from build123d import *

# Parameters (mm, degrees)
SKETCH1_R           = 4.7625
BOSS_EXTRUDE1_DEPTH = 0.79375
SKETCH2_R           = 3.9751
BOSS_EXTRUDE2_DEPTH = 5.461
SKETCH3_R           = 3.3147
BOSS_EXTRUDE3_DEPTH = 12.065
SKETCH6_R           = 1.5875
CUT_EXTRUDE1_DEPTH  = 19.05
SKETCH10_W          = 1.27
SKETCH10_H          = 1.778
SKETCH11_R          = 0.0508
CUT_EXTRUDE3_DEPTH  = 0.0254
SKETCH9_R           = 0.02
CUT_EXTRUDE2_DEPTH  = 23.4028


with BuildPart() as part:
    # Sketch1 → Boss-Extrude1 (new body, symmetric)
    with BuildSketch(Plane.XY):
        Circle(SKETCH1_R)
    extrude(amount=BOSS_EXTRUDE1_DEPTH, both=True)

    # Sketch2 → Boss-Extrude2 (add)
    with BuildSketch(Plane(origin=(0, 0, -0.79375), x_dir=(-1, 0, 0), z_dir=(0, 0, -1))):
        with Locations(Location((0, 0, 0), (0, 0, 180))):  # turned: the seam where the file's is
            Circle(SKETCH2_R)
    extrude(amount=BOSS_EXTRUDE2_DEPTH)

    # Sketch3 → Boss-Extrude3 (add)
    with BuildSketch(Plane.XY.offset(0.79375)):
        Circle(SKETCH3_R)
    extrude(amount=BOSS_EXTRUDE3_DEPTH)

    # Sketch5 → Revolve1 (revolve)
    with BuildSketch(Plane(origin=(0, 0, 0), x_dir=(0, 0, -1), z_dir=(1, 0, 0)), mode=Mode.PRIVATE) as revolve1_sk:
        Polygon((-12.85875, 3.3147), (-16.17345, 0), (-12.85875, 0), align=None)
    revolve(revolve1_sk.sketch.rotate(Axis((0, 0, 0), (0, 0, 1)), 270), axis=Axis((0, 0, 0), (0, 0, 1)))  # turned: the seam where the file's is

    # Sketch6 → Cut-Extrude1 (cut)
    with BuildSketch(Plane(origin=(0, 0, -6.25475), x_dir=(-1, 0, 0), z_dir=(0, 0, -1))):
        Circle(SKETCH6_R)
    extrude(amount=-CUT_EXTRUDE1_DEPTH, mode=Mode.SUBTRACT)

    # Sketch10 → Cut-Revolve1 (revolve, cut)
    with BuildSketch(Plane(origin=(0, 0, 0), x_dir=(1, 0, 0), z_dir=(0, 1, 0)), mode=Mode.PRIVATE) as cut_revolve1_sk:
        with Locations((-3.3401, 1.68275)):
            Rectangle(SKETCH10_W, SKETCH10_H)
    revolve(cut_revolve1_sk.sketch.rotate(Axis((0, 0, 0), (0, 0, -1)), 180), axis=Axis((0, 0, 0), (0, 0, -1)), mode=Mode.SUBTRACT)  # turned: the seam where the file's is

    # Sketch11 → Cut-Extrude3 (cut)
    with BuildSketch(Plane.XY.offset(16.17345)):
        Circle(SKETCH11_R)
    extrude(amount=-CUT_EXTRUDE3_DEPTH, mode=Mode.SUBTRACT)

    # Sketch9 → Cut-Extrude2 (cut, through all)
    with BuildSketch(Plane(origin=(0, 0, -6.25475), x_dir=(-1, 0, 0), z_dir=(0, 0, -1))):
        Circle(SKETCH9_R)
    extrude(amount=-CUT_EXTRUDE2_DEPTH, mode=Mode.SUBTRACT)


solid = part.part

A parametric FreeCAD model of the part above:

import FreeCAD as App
import Part
import Sketcher
Q = App.Units.Quantity

doc = App.newDocument("Part")
params = doc.addObject("Spreadsheet::Sheet", "Params")
for row, (alias, value) in enumerate([
    ("sketch1_diameter", "0.375 in"),
    ("pad1_length", "0.0625 in"),
    ("sketch2_diameter", "0.313 in"),
    ("pad2_length", "0.215 in"),
    ("sketch3_diameter", "0.261 in"),
    ("pad3_length", "0.475 in"),
    ("revolution_angle", "360 deg"),
    ("sketch5_diameter", "0.125 in"),
    ("pocket1_length", "0.75 in"),
    ("sketch6_width", "0.05 in"),
    ("sketch6_height", "0.07 in"),
    ("groove_angle", "360 deg"),
    ("sketch7_diameter", "0.004 in"),
    ("pocket2_length", "0.001 in"),
], start=1):
    params.set(f"A{row}", alias)
    params.set(f"B{row}", "=" + value)
    params.setAlias(f"B{row}", alias)

body = doc.addObject("PartDesign::Body", "Body")

sketch1 = doc.addObject("Sketcher::SketchObject", "Sketch")
body.addObject(sketch1)
sketch1.AttachmentSupport = (doc.XY_Plane, [""])
sketch1.MapMode = "FlatFace"
sketch1.addGeometry(Part.Circle(App.Vector(0, 0, 0), App.Vector(0, 0, 1), 4.8), False)
sketch1.addConstraint([
    Sketcher.Constraint("Coincident", 0, 3, -1, 1),
    Sketcher.Constraint("Diameter", 0, Q("0.375 in")),
])
sketch1.setExpression("Constraints[1]", "Params.sketch1_diameter")
pad1 = doc.addObject("PartDesign::Pad", "Pad")
body.addObject(pad1)
pad1.Profile = sketch1
pad1.setExpression("Length", "Params.pad1_length")
pad1.Midplane = True

sketch2 = doc.addObject("Sketcher::SketchObject", "Sketch001")
body.addObject(sketch2)
sketch2.AttachmentSupport = (doc.XY_Plane, [""])
sketch2.MapMode = "FlatFace"
sketch2.AttachmentOffset = App.Placement(App.Vector(0, 0, -0.03125 * 25.4), App.Rotation())
sketch2.addGeometry(Part.Circle(App.Vector(0, 0, 0), App.Vector(0, 0, 1), 4), False)
sketch2.addConstraint([
    Sketcher.Constraint("Coincident", 0, 3, -1, 1),
    Sketcher.Constraint("Diameter", 0, Q("0.313 in")),
])
sketch2.setExpression("Constraints[1]", "Params.sketch2_diameter")
pad2 = doc.addObject("PartDesign::Pad", "Pad001")
body.addObject(pad2)
pad2.Profile = sketch2
pad2.setExpression("Length", "Params.pad2_length")
pad2.Reversed = True

sketch3 = doc.addObject("Sketcher::SketchObject", "Sketch002")
body.addObject(sketch3)
sketch3.AttachmentSupport = (doc.XY_Plane, [""])
sketch3.MapMode = "FlatFace"
sketch3.AttachmentOffset = App.Placement(App.Vector(0, 0, 0.03125 * 25.4), App.Rotation())
sketch3.addGeometry(Part.Circle(App.Vector(0, 0, 0), App.Vector(0, 0, 1), 3.3), False)
sketch3.addConstraint([
    Sketcher.Constraint("Coincident", 0, 3, -1, 1),
    Sketcher.Constraint("Diameter", 0, Q("0.261 in")),
])
sketch3.setExpression("Constraints[1]", "Params.sketch3_diameter")
pad3 = doc.addObject("PartDesign::Pad", "Pad002")
body.addObject(pad3)
pad3.Profile = sketch3
pad3.setExpression("Length", "Params.pad3_length")

sketch4 = doc.addObject("Sketcher::SketchObject", "Sketch003")
body.addObject(sketch4)
sketch4.AttachmentSupport = (doc.YZ_Plane, [""])
sketch4.MapMode = "FlatFace"
sketch4.addGeometry([
    Part.LineSegment(App.Vector(3.3, 12.9, 0), App.Vector(0, 16.2, 0)),
    Part.LineSegment(App.Vector(0, 16.2, 0), App.Vector(0, 12.9, 0)),
    Part.LineSegment(App.Vector(0, 12.9, 0), App.Vector(3.3, 12.9, 0)),
], False)
sketch4.addConstraint([
    Sketcher.Constraint("Coincident", 0, 2, 1, 1),
    Sketcher.Constraint("Coincident", 1, 2, 2, 1),
    Sketcher.Constraint("Coincident", 2, 2, 0, 1),
    Sketcher.Constraint("Vertical", 1),
    Sketcher.Constraint("Horizontal", 2),
    Sketcher.Constraint("PointOnObject", 0, 2, -2),
    Sketcher.Constraint("Equal", 2, 1),
    Sketcher.Constraint("DistanceX", 2, 1, 2, 2, Q("0.1305 in")),
    Sketcher.Constraint("DistanceY", -1, 1, 0, 2, 16.17345),
])
revolution = doc.addObject("PartDesign::Revolution", "Revolution")
body.addObject(revolution)
revolution.Profile = sketch4
revolution.ReferenceAxis = (sketch4, ["V_Axis"])
revolution.setExpression("Angle", "Params.revolution_angle")

sketch5 = doc.addObject("Sketcher::SketchObject", "Sketch004")
body.addObject(sketch5)
sketch5.AttachmentSupport = (doc.XY_Plane, [""])
sketch5.MapMode = "FlatFace"
sketch5.AttachmentOffset = App.Placement(App.Vector(0, 0, -6.25475), App.Rotation())
sketch5.addGeometry(Part.Circle(App.Vector(0, 0, 0), App.Vector(0, 0, 1), 1.6), False)
sketch5.addConstraint([
    Sketcher.Constraint("Coincident", 0, 3, -1, 1),
    Sketcher.Constraint("Diameter", 0, Q("0.125 in")),
])
sketch5.setExpression("Constraints[1]", "Params.sketch5_diameter")
pocket1 = doc.addObject("PartDesign::Pocket", "Pocket")
body.addObject(pocket1)
pocket1.Profile = sketch5
pocket1.setExpression("Length", "Params.pocket1_length")
pocket1.Reversed = True

sketch6 = doc.addObject("Sketcher::SketchObject", "Sketch005")
body.addObject(sketch6)
sketch6.AttachmentSupport = (doc.XZ_Plane, [""])
sketch6.MapMode = "FlatFace"
sketch6.addGeometry([
    Part.LineSegment(App.Vector(-4, -2.6, 0), App.Vector(-4, -0.8, 0)),
    Part.LineSegment(App.Vector(-4, -0.8, 0), App.Vector(-2.7, -0.8, 0)),
    Part.LineSegment(App.Vector(-2.7, -0.8, 0), App.Vector(-2.7, -2.6, 0)),
    Part.LineSegment(App.Vector(-2.7, -2.6, 0), App.Vector(-4, -2.6, 0)),
], False)
sketch6.addConstraint([
    Sketcher.Constraint("Coincident", 0, 2, 1, 1),
    Sketcher.Constraint("Coincident", 1, 2, 2, 1),
    Sketcher.Constraint("Coincident", 2, 2, 3, 1),
    Sketcher.Constraint("Coincident", 3, 2, 0, 1),
    Sketcher.Constraint("Vertical", 0),
    Sketcher.Constraint("Horizontal", 1),
    Sketcher.Constraint("Vertical", 2),
    Sketcher.Constraint("Horizontal", 3),
    Sketcher.Constraint("DistanceX", 1, 1, 1, 2, Q("0.05 in")),
    Sketcher.Constraint("DistanceY", 0, 1, 0, 2, Q("0.07 in")),
    Sketcher.Constraint("DistanceY", 0, 2, -1, 1, Q("0.03125 in")),
    Sketcher.Constraint("DistanceX", 0, 2, -1, 1, Q("0.1565 in")),
])
sketch6.setExpression("Constraints[8]", "Params.sketch6_width")
sketch6.setExpression("Constraints[9]", "Params.sketch6_height")
groove = doc.addObject("PartDesign::Groove", "Groove")
body.addObject(groove)
groove.Profile = sketch6
groove.ReferenceAxis = (sketch6, ["V_Axis"])
groove.setExpression("Angle", "Params.groove_angle")

sketch7 = doc.addObject("Sketcher::SketchObject", "Sketch006")
body.addObject(sketch7)
sketch7.AttachmentSupport = (doc.XY_Plane, [""])
sketch7.MapMode = "FlatFace"
sketch7.AttachmentOffset = App.Placement(App.Vector(0, 0, 16.17345), App.Rotation())
sketch7.addGeometry(Part.Circle(App.Vector(0, 0, 0), App.Vector(0, 0, 1), 0.05), False)
sketch7.addConstraint([
    Sketcher.Constraint("Coincident", 0, 3, -1, 1),
    Sketcher.Constraint("Diameter", 0, Q("0.004 in")),
])
sketch7.setExpression("Constraints[1]", "Params.sketch7_diameter")
pocket2 = doc.addObject("PartDesign::Pocket", "Pocket001")
body.addObject(pocket2)
pocket2.Profile = sketch7
pocket2.setExpression("Length", "Params.pocket2_length")

sketch8 = doc.addObject("Sketcher::SketchObject", "Sketch007")
body.addObject(sketch8)
sketch8.AttachmentSupport = (doc.XY_Plane, [""])
sketch8.MapMode = "FlatFace"
sketch8.AttachmentOffset = App.Placement(App.Vector(0, 0, -6.25475), App.Rotation())
sketch8.addGeometry(Part.Circle(App.Vector(0, 0, 0), App.Vector(0, 0, 1), 0.02), False)
sketch8.addConstraint([
    Sketcher.Constraint("Coincident", 0, 3, -1, 1),
    Sketcher.Constraint("Diameter", 0, 0.04),
])
pocket3 = doc.addObject("PartDesign::Pocket", "Pocket002")
body.addObject(pocket3)
pocket3.Profile = sketch8
pocket3.Type = "ThroughAll"
pocket3.Reversed = True

doc.recompute()
